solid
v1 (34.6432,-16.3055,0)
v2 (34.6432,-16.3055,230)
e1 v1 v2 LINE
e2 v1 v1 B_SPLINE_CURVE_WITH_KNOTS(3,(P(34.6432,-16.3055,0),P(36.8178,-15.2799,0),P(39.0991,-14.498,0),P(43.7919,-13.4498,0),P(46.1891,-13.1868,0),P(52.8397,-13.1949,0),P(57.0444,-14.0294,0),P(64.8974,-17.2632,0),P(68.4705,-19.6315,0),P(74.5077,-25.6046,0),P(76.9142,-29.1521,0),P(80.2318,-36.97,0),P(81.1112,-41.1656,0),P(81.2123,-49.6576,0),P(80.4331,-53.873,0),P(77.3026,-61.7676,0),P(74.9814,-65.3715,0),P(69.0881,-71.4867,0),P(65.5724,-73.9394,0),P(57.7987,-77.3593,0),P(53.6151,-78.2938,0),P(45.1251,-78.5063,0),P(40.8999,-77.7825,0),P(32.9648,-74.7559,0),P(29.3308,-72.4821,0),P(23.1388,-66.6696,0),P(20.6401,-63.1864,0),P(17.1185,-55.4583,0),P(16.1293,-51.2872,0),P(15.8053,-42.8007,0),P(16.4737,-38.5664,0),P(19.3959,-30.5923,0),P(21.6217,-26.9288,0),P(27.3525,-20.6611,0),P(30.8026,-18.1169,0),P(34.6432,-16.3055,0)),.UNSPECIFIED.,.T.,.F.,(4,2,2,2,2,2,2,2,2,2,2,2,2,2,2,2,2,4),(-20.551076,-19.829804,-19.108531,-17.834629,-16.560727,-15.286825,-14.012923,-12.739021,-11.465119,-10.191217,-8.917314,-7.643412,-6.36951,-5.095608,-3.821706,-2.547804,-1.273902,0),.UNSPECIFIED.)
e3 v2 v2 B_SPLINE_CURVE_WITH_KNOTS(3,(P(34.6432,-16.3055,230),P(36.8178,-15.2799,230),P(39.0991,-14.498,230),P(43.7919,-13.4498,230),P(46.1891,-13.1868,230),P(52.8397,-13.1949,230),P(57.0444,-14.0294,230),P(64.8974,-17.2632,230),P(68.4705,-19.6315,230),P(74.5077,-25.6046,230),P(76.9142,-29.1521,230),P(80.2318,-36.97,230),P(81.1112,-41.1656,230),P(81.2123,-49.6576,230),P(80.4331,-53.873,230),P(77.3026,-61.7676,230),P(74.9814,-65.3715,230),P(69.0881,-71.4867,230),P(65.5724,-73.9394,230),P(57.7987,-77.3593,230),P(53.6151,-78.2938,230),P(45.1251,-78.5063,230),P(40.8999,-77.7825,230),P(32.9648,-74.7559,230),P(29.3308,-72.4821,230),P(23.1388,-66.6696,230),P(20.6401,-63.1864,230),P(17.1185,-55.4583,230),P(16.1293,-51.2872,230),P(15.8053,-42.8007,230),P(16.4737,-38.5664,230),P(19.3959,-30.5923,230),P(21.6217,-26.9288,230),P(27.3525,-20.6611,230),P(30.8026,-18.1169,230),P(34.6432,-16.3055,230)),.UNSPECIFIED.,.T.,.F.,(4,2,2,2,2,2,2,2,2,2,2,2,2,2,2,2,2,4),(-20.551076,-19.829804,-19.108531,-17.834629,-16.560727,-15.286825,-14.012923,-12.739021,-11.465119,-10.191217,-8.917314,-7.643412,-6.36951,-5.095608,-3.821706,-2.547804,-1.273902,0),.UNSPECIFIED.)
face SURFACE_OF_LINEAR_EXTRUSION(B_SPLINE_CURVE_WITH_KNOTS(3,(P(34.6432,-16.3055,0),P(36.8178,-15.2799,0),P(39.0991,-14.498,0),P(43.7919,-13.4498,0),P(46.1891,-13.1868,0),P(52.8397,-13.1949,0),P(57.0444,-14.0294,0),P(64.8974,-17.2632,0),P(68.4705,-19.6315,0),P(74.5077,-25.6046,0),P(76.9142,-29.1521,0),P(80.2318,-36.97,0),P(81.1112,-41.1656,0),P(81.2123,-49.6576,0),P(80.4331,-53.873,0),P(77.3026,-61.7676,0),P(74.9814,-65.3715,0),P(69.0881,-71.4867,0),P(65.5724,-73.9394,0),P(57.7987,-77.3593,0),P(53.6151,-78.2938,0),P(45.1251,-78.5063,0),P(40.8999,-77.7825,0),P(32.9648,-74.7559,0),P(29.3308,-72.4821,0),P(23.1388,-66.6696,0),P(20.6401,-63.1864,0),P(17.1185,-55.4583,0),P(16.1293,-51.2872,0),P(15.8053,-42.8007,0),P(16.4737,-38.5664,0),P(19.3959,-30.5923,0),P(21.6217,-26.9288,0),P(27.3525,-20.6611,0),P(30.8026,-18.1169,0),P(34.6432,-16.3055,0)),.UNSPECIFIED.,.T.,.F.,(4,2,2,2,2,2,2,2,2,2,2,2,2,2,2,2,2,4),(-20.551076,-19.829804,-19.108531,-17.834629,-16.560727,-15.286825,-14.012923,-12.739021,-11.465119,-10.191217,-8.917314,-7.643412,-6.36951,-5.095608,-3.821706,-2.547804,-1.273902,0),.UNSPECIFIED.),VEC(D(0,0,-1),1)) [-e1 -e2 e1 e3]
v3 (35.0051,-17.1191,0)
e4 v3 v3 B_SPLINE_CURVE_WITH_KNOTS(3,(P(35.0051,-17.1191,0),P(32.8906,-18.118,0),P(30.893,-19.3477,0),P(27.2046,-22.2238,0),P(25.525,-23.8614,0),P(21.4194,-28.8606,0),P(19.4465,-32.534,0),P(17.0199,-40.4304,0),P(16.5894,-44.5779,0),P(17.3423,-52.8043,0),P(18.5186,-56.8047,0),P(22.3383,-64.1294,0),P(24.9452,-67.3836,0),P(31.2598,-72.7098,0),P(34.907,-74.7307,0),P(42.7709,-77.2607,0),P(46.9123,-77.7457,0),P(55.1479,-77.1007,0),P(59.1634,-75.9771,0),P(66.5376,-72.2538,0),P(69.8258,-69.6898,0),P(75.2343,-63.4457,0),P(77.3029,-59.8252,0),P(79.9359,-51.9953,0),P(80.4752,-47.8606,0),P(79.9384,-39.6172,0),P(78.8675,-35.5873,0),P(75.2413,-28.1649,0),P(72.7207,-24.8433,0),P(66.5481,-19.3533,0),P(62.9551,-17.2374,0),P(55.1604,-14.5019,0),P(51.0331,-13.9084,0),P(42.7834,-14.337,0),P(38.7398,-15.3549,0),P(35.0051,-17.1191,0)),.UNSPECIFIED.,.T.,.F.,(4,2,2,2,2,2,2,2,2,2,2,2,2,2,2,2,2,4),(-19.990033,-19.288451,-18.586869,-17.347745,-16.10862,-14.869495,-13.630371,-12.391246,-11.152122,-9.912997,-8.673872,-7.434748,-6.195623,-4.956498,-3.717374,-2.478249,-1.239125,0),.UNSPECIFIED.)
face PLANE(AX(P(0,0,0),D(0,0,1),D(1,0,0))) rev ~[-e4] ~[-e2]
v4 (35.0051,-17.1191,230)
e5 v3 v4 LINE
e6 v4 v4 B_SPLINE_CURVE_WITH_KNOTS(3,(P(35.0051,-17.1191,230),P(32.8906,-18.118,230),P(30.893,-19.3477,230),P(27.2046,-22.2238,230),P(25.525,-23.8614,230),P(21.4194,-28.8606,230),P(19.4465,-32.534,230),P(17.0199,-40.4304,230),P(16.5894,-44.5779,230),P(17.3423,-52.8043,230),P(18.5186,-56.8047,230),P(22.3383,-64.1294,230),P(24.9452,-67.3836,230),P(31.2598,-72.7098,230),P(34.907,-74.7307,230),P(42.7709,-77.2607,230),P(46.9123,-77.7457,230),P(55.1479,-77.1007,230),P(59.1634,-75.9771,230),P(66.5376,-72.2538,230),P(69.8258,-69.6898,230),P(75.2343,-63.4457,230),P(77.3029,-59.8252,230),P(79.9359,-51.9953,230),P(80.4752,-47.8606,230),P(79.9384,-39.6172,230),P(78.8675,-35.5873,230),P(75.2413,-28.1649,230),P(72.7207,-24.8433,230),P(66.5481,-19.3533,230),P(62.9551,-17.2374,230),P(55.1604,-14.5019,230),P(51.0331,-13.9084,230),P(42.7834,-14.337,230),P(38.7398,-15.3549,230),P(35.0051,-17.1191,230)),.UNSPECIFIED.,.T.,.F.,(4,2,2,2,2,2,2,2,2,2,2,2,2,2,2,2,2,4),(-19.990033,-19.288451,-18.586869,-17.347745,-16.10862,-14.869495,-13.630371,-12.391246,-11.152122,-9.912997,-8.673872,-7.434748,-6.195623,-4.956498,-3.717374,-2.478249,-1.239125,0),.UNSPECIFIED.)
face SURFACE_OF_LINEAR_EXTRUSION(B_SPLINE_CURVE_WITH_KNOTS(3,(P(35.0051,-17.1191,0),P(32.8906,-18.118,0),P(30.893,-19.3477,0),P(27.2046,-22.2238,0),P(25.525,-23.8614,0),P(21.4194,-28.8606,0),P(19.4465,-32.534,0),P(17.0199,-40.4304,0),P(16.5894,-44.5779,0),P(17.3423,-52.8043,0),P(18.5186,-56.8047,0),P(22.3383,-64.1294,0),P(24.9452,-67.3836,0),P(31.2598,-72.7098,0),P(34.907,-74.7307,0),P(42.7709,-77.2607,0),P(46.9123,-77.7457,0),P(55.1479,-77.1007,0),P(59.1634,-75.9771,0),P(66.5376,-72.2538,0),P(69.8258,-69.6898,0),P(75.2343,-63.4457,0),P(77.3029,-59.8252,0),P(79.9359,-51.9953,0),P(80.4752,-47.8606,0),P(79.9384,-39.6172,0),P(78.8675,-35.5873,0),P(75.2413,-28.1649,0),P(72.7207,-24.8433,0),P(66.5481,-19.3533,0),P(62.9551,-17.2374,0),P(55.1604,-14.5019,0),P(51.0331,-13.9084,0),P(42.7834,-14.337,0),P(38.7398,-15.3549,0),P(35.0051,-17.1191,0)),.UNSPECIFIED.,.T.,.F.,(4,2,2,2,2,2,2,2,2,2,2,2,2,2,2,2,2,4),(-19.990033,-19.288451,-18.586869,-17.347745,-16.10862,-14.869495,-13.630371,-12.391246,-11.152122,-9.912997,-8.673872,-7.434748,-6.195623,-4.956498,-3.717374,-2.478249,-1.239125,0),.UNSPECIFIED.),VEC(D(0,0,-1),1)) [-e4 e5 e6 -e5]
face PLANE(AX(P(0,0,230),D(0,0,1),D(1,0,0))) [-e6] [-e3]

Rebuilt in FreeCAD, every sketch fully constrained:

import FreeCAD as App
import Part
import Sketcher

doc = App.newDocument("Part")
body = doc.addObject("PartDesign::Body", "Body")

# Sketch on XY plane
sketch1 = body.newObject("Sketcher::SketchObject", "Sketch")
sketch1.AttachmentSupport = (doc.getObject("XY_Plane"), [""])
sketch1.MapMode = "FlatFace"
sketch1.addGeometry(Part.BSplineCurve([App.Vector(34.6432, -16.3055, 0), App.Vector(36.8178, -15.2799, 0), App.Vector(39.0991, -14.498, 0), App.Vector(43.7919, -13.4498, 0), App.Vector(46.1891, -13.1868, 0), App.Vector(52.8397, -13.1949, 0), App.Vector(57.0444, -14.0294, 0), App.Vector(64.8974, -17.2632, 0), App.Vector(68.4705, -19.6315, 0), App.Vector(74.5077, -25.6046, 0), App.Vector(76.9142, -29.1521, 0), App.Vector(80.2318, -36.97, 0), App.Vector(81.1112, -41.1656, 0), App.Vector(81.2123, -49.6576, 0), App.Vector(80.4331, -53.873, 0), App.Vector(77.3026, -61.7676, 0), App.Vector(74.9814, -65.3715, 0), App.Vector(69.0881, -71.4867, 0), App.Vector(65.5724, -73.9394, 0), App.Vector(57.7987, -77.3593, 0), App.Vector(53.6151, -78.2938, 0), App.Vector(45.1251, -78.5063, 0), App.Vector(40.8999, -77.7825, 0), App.Vector(32.9648, -74.7559, 0), App.Vector(29.3308, -72.4821, 0), App.Vector(23.1388, -66.6696, 0), App.Vector(20.6401, -63.1864, 0), App.Vector(17.1185, -55.4583, 0), App.Vector(16.1293, -51.2872, 0), App.Vector(15.8053, -42.8007, 0), App.Vector(16.4737, -38.5664, 0), App.Vector(19.3959, -30.5923, 0), App.Vector(21.6217, -26.9288, 0), App.Vector(27.3525, -20.6611, 0), App.Vector(30.8026, -18.1169, 0), App.Vector(34.6432, -16.3055, 0)], [4, 2, 2, 2, 2, 2, 2, 2, 2, 2, 2, 2, 2, 2, 2, 2, 2, 4], [-20.551076, -19.829804, -19.108531, -17.834629, -16.560727, -15.286825, -14.012923, -12.739021, -11.465119, -10.191217, -8.917314, -7.643412, -6.36951, -5.095608, -3.821706, -2.547804, -1.273902, 0], False, 3, [1, 1, 1, 1, 1, 1, 1, 1, 1, 1, 1, 1, 1, 1, 1, 1, 1, 1, 1, 1, 1, 1, 1, 1, 1, 1, 1, 1, 1, 1, 1, 1, 1, 1, 1, 1], False), False)
sketch1.addGeometry(Part.BSplineCurve([App.Vector(35.0051, -17.1191, 0), App.Vector(32.8906, -18.118, 0), App.Vector(30.893, -19.3477, 0), App.Vector(27.2046, -22.2238, 0), App.Vector(25.525, -23.8614, 0), App.Vector(21.4194, -28.8606, 0), App.Vector(19.4465, -32.534, 0), App.Vector(17.0199, -40.4304, 0), App.Vector(16.5894, -44.5779, 0), App.Vector(17.3423, -52.8043, 0), App.Vector(18.5186, -56.8047, 0), App.Vector(22.3383, -64.1294, 0), App.Vector(24.9452, -67.3836, 0), App.Vector(31.2598, -72.7098, 0), App.Vector(34.907, -74.7307, 0), App.Vector(42.7709, -77.2607, 0), App.Vector(46.9123, -77.7457, 0), App.Vector(55.1479, -77.1007, 0), App.Vector(59.1634, -75.9771, 0), App.Vector(66.5376, -72.2538, 0), App.Vector(69.8258, -69.6898, 0), App.Vector(75.2343, -63.4457, 0), App.Vector(77.3029, -59.8252, 0), App.Vector(79.9359, -51.9953, 0), App.Vector(80.4752, -47.8606, 0), App.Vector(79.9384, -39.6172, 0), App.Vector(78.8675, -35.5873, 0), App.Vector(75.2413, -28.1649, 0), App.Vector(72.7207, -24.8433, 0), App.Vector(66.5481, -19.3533, 0), App.Vector(62.9551, -17.2374, 0), App.Vector(55.1604, -14.5019, 0), App.Vector(51.0331, -13.9084, 0), App.Vector(42.7834, -14.337, 0), App.Vector(38.7398, -15.3549, 0), App.Vector(35.0051, -17.1191, 0)], [4, 2, 2, 2, 2, 2, 2, 2, 2, 2, 2, 2, 2, 2, 2, 2, 2, 4], [-19.990033, -19.288451, -18.586869, -17.347745, -16.10862, -14.869495, -13.630371, -12.391246, -11.152122, -9.912997, -8.673872, -7.434748, -6.195623, -4.956498, -3.717374, -2.478249, -1.239125, 0], False, 3, [1, 1, 1, 1, 1, 1, 1, 1, 1, 1, 1, 1, 1, 1, 1, 1, 1, 1, 1, 1, 1, 1, 1, 1, 1, 1, 1, 1, 1, 1, 1, 1, 1, 1, 1, 1], False), False)
sketch1.addConstraint(Sketcher.Constraint("Block", 0))
sketch1.addConstraint(Sketcher.Constraint("Block", 1))
pad1 = body.newObject("PartDesign::Pad", "Pad")
pad1.Profile = sketch1
pad1.Length = 230

doc.recompute()
